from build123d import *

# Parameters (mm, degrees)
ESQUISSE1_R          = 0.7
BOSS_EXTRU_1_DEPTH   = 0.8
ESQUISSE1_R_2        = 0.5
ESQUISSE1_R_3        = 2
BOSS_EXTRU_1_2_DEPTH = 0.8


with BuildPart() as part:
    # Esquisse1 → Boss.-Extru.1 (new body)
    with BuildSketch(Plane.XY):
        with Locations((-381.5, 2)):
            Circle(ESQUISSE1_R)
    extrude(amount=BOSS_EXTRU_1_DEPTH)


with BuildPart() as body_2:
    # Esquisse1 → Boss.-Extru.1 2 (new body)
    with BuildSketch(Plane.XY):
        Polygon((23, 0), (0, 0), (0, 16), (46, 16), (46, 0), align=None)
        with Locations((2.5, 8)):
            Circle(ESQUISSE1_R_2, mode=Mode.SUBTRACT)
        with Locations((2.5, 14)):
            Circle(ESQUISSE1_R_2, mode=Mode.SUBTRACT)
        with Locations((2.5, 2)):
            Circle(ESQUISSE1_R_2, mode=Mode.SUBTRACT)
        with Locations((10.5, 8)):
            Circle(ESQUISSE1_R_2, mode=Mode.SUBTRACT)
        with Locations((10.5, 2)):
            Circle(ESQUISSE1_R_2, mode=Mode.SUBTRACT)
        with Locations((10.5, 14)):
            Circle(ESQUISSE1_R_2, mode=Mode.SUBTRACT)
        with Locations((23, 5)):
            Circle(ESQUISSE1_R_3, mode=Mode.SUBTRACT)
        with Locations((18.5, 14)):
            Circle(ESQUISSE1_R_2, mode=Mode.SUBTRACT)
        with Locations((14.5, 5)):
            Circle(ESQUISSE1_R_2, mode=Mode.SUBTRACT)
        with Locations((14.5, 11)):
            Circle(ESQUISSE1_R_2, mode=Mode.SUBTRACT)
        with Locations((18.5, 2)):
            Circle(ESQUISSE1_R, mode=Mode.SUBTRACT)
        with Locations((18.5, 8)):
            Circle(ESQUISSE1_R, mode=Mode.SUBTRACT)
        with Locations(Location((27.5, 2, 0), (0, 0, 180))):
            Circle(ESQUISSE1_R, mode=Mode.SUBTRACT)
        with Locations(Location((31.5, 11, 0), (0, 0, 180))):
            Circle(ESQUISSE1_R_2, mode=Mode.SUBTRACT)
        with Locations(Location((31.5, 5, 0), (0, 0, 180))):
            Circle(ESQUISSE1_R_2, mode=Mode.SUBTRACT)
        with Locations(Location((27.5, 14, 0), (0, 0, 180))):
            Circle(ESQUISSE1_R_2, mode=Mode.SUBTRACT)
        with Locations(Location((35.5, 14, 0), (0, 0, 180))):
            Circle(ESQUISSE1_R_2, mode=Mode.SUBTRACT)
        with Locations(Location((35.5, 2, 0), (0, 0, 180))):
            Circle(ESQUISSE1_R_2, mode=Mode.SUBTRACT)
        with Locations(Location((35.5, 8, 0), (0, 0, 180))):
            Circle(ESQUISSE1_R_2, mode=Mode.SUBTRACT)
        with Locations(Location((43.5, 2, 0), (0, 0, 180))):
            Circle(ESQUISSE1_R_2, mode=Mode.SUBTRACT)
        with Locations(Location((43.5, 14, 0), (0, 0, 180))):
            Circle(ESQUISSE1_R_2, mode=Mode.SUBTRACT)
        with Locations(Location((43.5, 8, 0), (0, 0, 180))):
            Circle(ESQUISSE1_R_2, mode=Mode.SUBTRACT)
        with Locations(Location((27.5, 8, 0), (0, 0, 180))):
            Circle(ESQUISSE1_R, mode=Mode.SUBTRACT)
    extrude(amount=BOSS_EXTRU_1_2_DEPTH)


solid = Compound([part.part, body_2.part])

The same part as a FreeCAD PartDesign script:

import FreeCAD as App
import Part
import Sketcher

V = App.Vector
Q = App.Units.Quantity


def add_polygon(sketch, points):
    """Adds a closed chain of lines whose ends are joined by coincident constraints."""
    first, n = sketch.GeometryCount, len(points)
    for a, b in zip(points, points[1:] + points[:1]):
        sketch.addGeometry(Part.LineSegment(App.Vector(*a, 0), App.Vector(*b, 0)), False)
    for i in range(n):
        sketch.addConstraint(Sketcher.Constraint("Coincident", first + i, 2, first + (i + 1) % n, 1))

doc = App.newDocument("Part")
params = doc.addObject("Spreadsheet::Sheet", "Params")
for row, (alias, value) in enumerate([
    ("sketch1_diameter", "1.4 mm"),
    ("pad1_length", "0.8 mm"),
    ("sketch2_diameter", "1 mm"),
    ("sketch2_diameter2", "4 mm"),
    ("sketch2_diameter3", "1.4 mm"),
    ("sketch2_width", "46 mm"),
    ("sketch2_height", "16 mm"),
    ("pad2_length", "0.8 mm"),
], start=1):
    params.set(f"A{row}", alias)
    params.set(f"B{row}", "=" + value)
    params.setAlias(f"B{row}", alias)

body = doc.addObject("PartDesign::Body", "Body")

# Sketch on XY plane
sketch1 = body.newObject("Sketcher::SketchObject", "Sketch")
sketch1.AttachmentSupport = (doc.getObject("XY_Plane"), [""])
sketch1.MapMode = "FlatFace"
sketch1.addGeometry(Part.Circle(V(-381.5, 2, 0), V(0, 0, 1), 0.7), False)
sketch1.addConstraint(Sketcher.Constraint("Diameter", 0, Q("1.4 mm")))
sketch1.addConstraint(Sketcher.Constraint("DistanceY", -1, 1, 0, 3, Q("2 mm")))
sketch1.addConstraint(Sketcher.Constraint("DistanceX", 0, 3, -1, 1, Q("381.5 mm")))
sketch1.setExpression("Constraints[0]", "Params.sketch1_diameter")
pad1 = body.newObject("PartDesign::Pad", "Pad")
pad1.Profile = sketch1
pad1.setExpression("Length", "Params.pad1_length")
body2 = doc.addObject("PartDesign::Body", "Body001")

# Sketch on XY plane
sketch2 = body2.newObject("Sketcher::SketchObject", "Sketch001")
sketch2.AttachmentSupport = (doc.getObject("XY_Plane001"), [""])
sketch2.MapMode = "FlatFace"
add_polygon(sketch2, [(0, 0), (46, 0), (46, 16), (0, 16)])  # lines 0-3
sketch2.addGeometry(Part.Circle(V(43.5, 2, 0), V(0, 0, 1), 0.5), False)  # 4
sketch2.addGeometry(Part.Circle(V(35.5, 2, 0), V(0, 0, 1), 0.5), False)  # 5
sketch2.addGeometry(Part.Circle(V(27.5, 2, 0), V(0, 0, 1), 0.7), False)  # 6
sketch2.addGeometry(Part.Circle(V(31.5, 5, 0), V(0, 0, 1), 0.5), False)  # 7
sketch2.addGeometry(Part.Circle(V(18.5, 2, 0), V(0, 0, 1), 0.7), False)  # 8
sketch2.addGeometry(Part.Circle(V(10.5, 2, 0), V(0, 0, 1), 0.5), False)  # 9
sketch2.addGeometry(Part.Circle(V(2.5, 2, 0), V(0, 0, 1), 0.5), False)  # 10
sketch2.addGeometry(Part.Circle(V(23, 5, 0), V(0, 0, 1), 2), False)  # 11
sketch2.addGeometry(Part.Circle(V(14.5, 5, 0), V(0, 0, 1), 0.5), False)  # 12
sketch2.addGeometry(Part.Circle(V(43.5, 8, 0), V(0, 0, 1), 0.5), False)  # 13
sketch2.addGeometry(Part.Circle(V(35.5, 8, 0), V(0, 0, 1), 0.5), False)  # 14
sketch2.addGeometry(Part.Circle(V(27.5, 8, 0), V(0, 0, 1), 0.7), False)  # 15
sketch2.addGeometry(Part.Circle(V(31.5, 11, 0), V(0, 0, 1), 0.5), False)  # 16
sketch2.addGeometry(Part.Circle(V(43.5, 14, 0), V(0, 0, 1), 0.5), False)  # 17
sketch2.addGeometry(Part.Circle(V(35.5, 14, 0), V(0, 0, 1), 0.5), False)  # 18
sketch2.addGeometry(Part.Circle(V(27.5, 14, 0), V(0, 0, 1), 0.5), False)  # 19
sketch2.addGeometry(Part.Circle(V(18.5, 8, 0), V(0, 0, 1), 0.7), False)  # 20
sketch2.addGeometry(Part.Circle(V(14.5, 11, 0), V(0, 0, 1), 0.5), False)  # 21
sketch2.addGeometry(Part.Circle(V(10.5, 8, 0), V(0, 0, 1), 0.5), False)  # 22
sketch2.addGeometry(Part.Circle(V(2.5, 8, 0), V(0, 0, 1), 0.5), False)  # 23
sketch2.addGeometry(Part.Circle(V(18.5, 14, 0), V(0, 0, 1), 0.5), False)  # 24
sketch2.addGeometry(Part.Circle(V(10.5, 14, 0), V(0, 0, 1), 0.5), False)  # 25
sketch2.addGeometry(Part.Circle(V(2.5, 14, 0), V(0, 0, 1), 0.5), False)  # 26
sketch2.addConstraint(Sketcher.Constraint("Horizontal", 0))
sketch2.addConstraint(Sketcher.Constraint("Vertical", 1))
sketch2.addConstraint(Sketcher.Constraint("Horizontal", 2))
sketch2.addConstraint(Sketcher.Constraint("Vertical", 3))
sketch2.addConstraint(Sketcher.Constraint("Coincident", 3, 2, -1, 1))
sketch2.addConstraint(Sketcher.Constraint("Equal", 4, 5))
sketch2.addConstraint(Sketcher.Constraint("Equal", 5, 7))
sketch2.addConstraint(Sketcher.Constraint("Equal", 6, 8))
sketch2.addConstraint(Sketcher.Constraint("Equal", 7, 9))
sketch2.addConstraint(Sketcher.Constraint("Equal", 9, 10))
sketch2.addConstraint(Sketcher.Constraint("Equal", 10, 12))
sketch2.addConstraint(Sketcher.Constraint("Equal", 12, 13))
sketch2.addConstraint(Sketcher.Constraint("Equal", 13, 14))
sketch2.addConstraint(Sketcher.Constraint("Equal", 8, 15))
sketch2.addConstraint(Sketcher.Constraint("Equal", 14, 16))
sketch2.addConstraint(Sketcher.Constraint("Equal", 16, 17))
sketch2.addConstraint(Sketcher.Constraint("Equal", 17, 18))
sketch2.addConstraint(Sketcher.Constraint("Equal", 18, 19))
sketch2.addConstraint(Sketcher.Constraint("Equal", 15, 20))
sketch2.addConstraint(Sketcher.Constraint("Equal", 19, 21))
sketch2.addConstraint(Sketcher.Constraint("Equal", 21, 22))
sketch2.addConstraint(Sketcher.Constraint("Equal", 22, 23))
sketch2.addConstraint(Sketcher.Constraint("Equal", 23, 24))
sketch2.addConstraint(Sketcher.Constraint("Equal", 24, 25))
sketch2.addConstraint(Sketcher.Constraint("Equal", 25, 26))
sketch2.addConstraint(Sketcher.Constraint("Horizontal", 4, 3, 5, 3))
sketch2.addConstraint(Sketcher.Constraint("Horizontal", 5, 3, 6, 3))
sketch2.addConstraint(Sketcher.Constraint("Horizontal", 6, 3, 8, 3))
sketch2.addConstraint(Sketcher.Constraint("Horizontal", 8, 3, 9, 3))
sketch2.addConstraint(Sketcher.Constraint("Horizontal", 9, 3, 10, 3))
sketch2.addConstraint(Sketcher.Constraint("Horizontal", 7, 3, 11, 3))
sketch2.addConstraint(Sketcher.Constraint("Horizontal", 11, 3, 12, 3))
sketch2.addConstraint(Sketcher.Constraint("Horizontal", 13, 3, 14, 3))
sketch2.addConstraint(Sketcher.Constraint("Horizontal", 14, 3, 15, 3))
sketch2.addConstraint(Sketcher.Constraint("Horizontal", 17, 3, 18, 3))
sketch2.addConstraint(Sketcher.Constraint("Horizontal", 18, 3, 19, 3))
sketch2.addConstraint(Sketcher.Constraint("Horizontal", 15, 3, 20, 3))
sketch2.addConstraint(Sketcher.Constraint("Horizontal", 16, 3, 21, 3))
sketch2.addConstraint(Sketcher.Constraint("Horizontal", 20, 3, 22, 3))
sketch2.addConstraint(Sketcher.Constraint("Horizontal", 22, 3, 23, 3))
sketch2.addConstraint(Sketcher.Constraint("Horizontal", 19, 3, 24, 3))
sketch2.addConstraint(Sketcher.Constraint("Horizontal", 24, 3, 25, 3))
sketch2.addConstraint(Sketcher.Constraint("Horizontal", 25, 3, 26, 3))
sketch2.addConstraint(Sketcher.Constraint("Vertical", 4, 3, 13, 3))
sketch2.addConstraint(Sketcher.Constraint("Vertical", 5, 3, 14, 3))
sketch2.addConstraint(Sketcher.Constraint("Vertical", 6, 3, 15, 3))
sketch2.addConstraint(Sketcher.Constraint("Vertical", 7, 3, 16, 3))
sketch2.addConstraint(Sketcher.Constraint("Vertical", 13, 3, 17, 3))
sketch2.addConstraint(Sketcher.Constraint("Vertical", 14, 3, 18, 3))
sketch2.addConstraint(Sketcher.Constraint("Vertical", 15, 3, 19, 3))
sketch2.addConstraint(Sketcher.Constraint("Vertical", 8, 3, 20, 3))
sketch2.addConstraint(Sketcher.Constraint("Vertical", 12, 3, 21, 3))
sketch2.addConstraint(Sketcher.Constraint("Vertical", 9, 3, 22, 3))
sketch2.addConstraint(Sketcher.Constraint("Vertical", 10, 3, 23, 3))
sketch2.addConstraint(Sketcher.Constraint("Vertical", 20, 3, 24, 3))
sketch2.addConstraint(Sketcher.Constraint("Vertical", 22, 3, 25, 3))
sketch2.addConstraint(Sketcher.Constraint("Vertical", 23, 3, 26, 3))
sketch2.addConstraint(Sketcher.Constraint("Diameter", 4, Q("1 mm")))
sketch2.addConstraint(Sketcher.Constraint("Diameter", 11, Q("4 mm")))
sketch2.addConstraint(Sketcher.Constraint("Diameter", 6, Q("1.4 mm")))
sketch2.addConstraint(Sketcher.Constraint("DistanceX", 0, 1, 0, 2, Q("46 mm")))
sketch2.addConstraint(Sketcher.Constraint("DistanceY", 1, 1, 1, 2, Q("16 mm")))
sketch2.addConstraint(Sketcher.Constraint("DistanceY", -1, 1, 4, 3, Q("2 mm")))
sketch2.addConstraint(Sketcher.Constraint("DistanceY", -1, 1, 7, 3, Q("5 mm")))
sketch2.addConstraint(Sketcher.Constraint("DistanceX", -1, 1, 11, 3, Q("23 mm")))
sketch2.addConstraint(Sketcher.Constraint("DistanceY", -1, 1, 13, 3, Q("8 mm")))
sketch2.addConstraint(Sketcher.Constraint("DistanceY", -1, 1, 16, 3, Q("11 mm")))
sketch2.addConstraint(Sketcher.Constraint("DistanceY", -1, 1, 17, 3, Q("14 mm")))
sketch2.addConstraint(Sketcher.Constraint("DistanceX", 5, 3, 4, 3, Q("8 mm")))
sketch2.addConstraint(Sketcher.Constraint("DistanceX", 6, 3, 5, 3, Q("8 mm")))
sketch2.addConstraint(Sketcher.Constraint("DistanceX", 7, 3, 5, 3, Q("4 mm")))
sketch2.addConstraint(Sketcher.Constraint("DistanceX", 8, 3, 6, 3, Q("9 mm")))
sketch2.addConstraint(Sketcher.Constraint("DistanceX", 9, 3, 8, 3, Q("8 mm")))
sketch2.addConstraint(Sketcher.Constraint("DistanceX", 10, 3, 9, 3, Q("8 mm")))
sketch2.addConstraint(Sketcher.Constraint("DistanceX", 12, 3, 8, 3, Q("4 mm")))
sketch2.addConstraint(Sketcher.Constraint("DistanceX", -1, 1, 4, 3, Q("43.5 mm")))
sketch2.setExpression("Constraints[61]", "Params.sketch2_diameter")
sketch2.setExpression("Constraints[62]", "Params.sketch2_diameter2")
sketch2.setExpression("Constraints[63]", "Params.sketch2_diameter3")
sketch2.setExpression("Constraints[64]", "Params.sketch2_width")
sketch2.setExpression("Constraints[65]", "Params.sketch2_height")
pad2 = body2.newObject("PartDesign::Pad", "Pad001")
pad2.Profile = sketch2
pad2.setExpression("Length", "Params.pad2_length")

doc.recompute()
